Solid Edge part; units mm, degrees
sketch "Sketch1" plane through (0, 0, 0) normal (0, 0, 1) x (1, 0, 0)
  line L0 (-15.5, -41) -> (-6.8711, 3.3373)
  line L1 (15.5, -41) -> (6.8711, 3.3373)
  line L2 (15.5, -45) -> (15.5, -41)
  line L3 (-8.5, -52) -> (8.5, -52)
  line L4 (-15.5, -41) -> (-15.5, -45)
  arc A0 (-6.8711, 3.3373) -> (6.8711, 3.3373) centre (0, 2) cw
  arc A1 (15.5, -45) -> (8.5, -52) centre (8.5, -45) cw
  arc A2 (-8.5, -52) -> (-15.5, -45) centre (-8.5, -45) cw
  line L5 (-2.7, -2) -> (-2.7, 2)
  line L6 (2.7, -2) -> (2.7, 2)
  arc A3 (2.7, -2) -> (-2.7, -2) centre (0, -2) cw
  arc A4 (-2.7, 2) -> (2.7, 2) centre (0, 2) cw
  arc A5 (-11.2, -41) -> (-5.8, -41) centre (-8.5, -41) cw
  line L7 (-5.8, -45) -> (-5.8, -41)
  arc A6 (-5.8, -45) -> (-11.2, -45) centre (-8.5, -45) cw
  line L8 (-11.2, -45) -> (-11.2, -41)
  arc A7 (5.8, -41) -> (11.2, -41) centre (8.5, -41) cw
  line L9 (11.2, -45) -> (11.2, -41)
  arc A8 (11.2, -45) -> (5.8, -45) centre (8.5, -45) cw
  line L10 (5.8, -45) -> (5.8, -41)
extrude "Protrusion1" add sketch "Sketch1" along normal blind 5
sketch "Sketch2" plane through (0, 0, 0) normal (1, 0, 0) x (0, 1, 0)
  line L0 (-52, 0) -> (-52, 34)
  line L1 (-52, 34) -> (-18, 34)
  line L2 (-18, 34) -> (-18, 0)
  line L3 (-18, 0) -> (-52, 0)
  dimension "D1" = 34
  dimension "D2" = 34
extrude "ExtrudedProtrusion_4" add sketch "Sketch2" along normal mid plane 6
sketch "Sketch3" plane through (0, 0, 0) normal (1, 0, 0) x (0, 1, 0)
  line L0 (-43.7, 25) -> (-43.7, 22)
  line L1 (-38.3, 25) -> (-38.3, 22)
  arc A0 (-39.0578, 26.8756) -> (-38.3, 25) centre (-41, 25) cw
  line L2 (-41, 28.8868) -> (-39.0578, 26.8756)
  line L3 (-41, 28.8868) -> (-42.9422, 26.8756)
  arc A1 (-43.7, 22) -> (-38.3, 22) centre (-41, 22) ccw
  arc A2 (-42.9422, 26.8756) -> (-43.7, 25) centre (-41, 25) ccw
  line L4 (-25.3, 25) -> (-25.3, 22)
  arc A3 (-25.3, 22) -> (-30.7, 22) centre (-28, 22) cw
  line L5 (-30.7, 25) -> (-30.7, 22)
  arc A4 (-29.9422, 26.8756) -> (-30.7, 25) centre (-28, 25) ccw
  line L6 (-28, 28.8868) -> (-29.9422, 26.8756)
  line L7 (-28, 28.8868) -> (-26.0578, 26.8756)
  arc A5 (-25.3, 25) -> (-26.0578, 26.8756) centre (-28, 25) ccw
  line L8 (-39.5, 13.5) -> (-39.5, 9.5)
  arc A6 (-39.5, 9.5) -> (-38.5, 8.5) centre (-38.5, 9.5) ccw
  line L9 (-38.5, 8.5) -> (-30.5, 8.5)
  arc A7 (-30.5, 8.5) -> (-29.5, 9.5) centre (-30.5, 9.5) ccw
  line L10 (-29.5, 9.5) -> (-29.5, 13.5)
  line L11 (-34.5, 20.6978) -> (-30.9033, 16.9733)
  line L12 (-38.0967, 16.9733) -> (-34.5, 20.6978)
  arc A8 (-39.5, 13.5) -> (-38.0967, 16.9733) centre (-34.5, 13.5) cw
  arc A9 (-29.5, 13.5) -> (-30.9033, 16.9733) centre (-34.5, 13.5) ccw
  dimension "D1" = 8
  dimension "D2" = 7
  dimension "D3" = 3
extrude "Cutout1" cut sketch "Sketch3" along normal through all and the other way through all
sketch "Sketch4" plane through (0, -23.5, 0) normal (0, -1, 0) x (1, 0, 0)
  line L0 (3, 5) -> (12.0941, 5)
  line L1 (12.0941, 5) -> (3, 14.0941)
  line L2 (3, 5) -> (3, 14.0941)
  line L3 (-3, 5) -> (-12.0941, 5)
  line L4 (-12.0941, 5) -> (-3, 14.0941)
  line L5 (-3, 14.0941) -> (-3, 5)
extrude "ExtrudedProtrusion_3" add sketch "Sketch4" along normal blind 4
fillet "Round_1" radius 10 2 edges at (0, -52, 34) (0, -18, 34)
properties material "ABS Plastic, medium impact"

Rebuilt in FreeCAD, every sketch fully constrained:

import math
import FreeCAD as App
import Part
import Sketcher
from FreeCAD import Vector
Q = App.Units.Quantity


def edges_at(feature, points):
    """Names of the edges that pass closest to the given points."""
    edges = feature.Shape.Edges
    near = lambda p: min(range(len(edges)), key=lambda i: edges[i].distToShape(Part.Vertex(*p))[0])
    return sorted({f"Edge{near(p) + 1}" for p in points})


def add_polygon(sketch, points):
    """Adds a closed chain of lines whose ends are joined by coincident constraints."""
    first, n = sketch.GeometryCount, len(points)
    for a, b in zip(points, points[1:] + points[:1]):
        sketch.addGeometry(Part.LineSegment(App.Vector(*a, 0), App.Vector(*b, 0)), False)
    for i in range(n):
        sketch.addConstraint(Sketcher.Constraint("Coincident", first + i, 2, first + (i + 1) % n, 1))

doc = App.newDocument("Part")
body = doc.addObject("PartDesign::Body", "Body")

# Sketch on XY plane
sketch1 = body.newObject("Sketcher::SketchObject", "Sketch")
sketch1.AttachmentSupport = (doc.getObject("XY_Plane"), [""])
sketch1.MapMode = "FlatFace"
sketch1.addGeometry([
    Part.LineSegment(Vector(-6.9, 3.3, 0), Vector(-15.5, -41, 0)),  # 0
    Part.LineSegment(Vector(-15.5, -41, 0), Vector(-15.5, -45, 0)),  # 1
    Part.ArcOfCircle(Part.Circle(Vector(-8.5, -45, 0), Vector(0, 0, 1), 7), math.radians(180), math.radians(270)),  # 2
    Part.LineSegment(Vector(-8.5, -52, 0), Vector(8.5, -52, 0)),  # 3
    Part.ArcOfCircle(Part.Circle(Vector(8.5, -45, 0), Vector(0, 0, 1), 7), math.radians(-90), math.radians(0)),  # 4
    Part.LineSegment(Vector(15.5, -45, 0), Vector(15.5, -41, 0)),  # 5
    Part.LineSegment(Vector(15.5, -41, 0), Vector(6.9, 3.3, 0)),  # 6
    Part.ArcOfCircle(Part.Circle(Vector(0, 2, 0), Vector(0, 0, 1), 7), math.radians(11), math.radians(169)),  # 7
    Part.LineSegment(Vector(-11.2, -45, 0), Vector(-11.2, -41, 0)),  # 8
    Part.ArcOfCircle(Part.Circle(Vector(-8.5, -41, 0), Vector(0, 0, 1), 2.7), math.radians(0), math.radians(180)),  # 9
    Part.LineSegment(Vector(-5.8, -41, 0), Vector(-5.8, -45, 0)),  # 10
    Part.ArcOfCircle(Part.Circle(Vector(-8.5, -45, 0), Vector(0, 0, 1), 2.7), math.radians(180), math.radians(360)),  # 11
    Part.LineSegment(Vector(5.8, -45, 0), Vector(5.8, -41, 0)),  # 12
    Part.ArcOfCircle(Part.Circle(Vector(8.5, -41, 0), Vector(0, 0, 1), 2.7), math.radians(0), math.radians(180)),  # 13
    Part.LineSegment(Vector(11.2, -41, 0), Vector(11.2, -45, 0)),  # 14
    Part.ArcOfCircle(Part.Circle(Vector(8.5, -45, 0), Vector(0, 0, 1), 2.7), math.radians(180), math.radians(360)),  # 15
    Part.ArcOfCircle(Part.Circle(Vector(0, -2, 0), Vector(0, 0, 1), 2.7), math.radians(180), math.radians(360)),  # 16
    Part.LineSegment(Vector(-2.7, -2, 0), Vector(-2.7, 2, 0)),  # 17
    Part.ArcOfCircle(Part.Circle(Vector(0, 2, 0), Vector(0, 0, 1), 2.7), math.radians(0), math.radians(180)),  # 18
    Part.LineSegment(Vector(2.7, 2, 0), Vector(2.7, -2, 0)),  # 19
], False)
sketch1.addConstraint([
    Sketcher.Constraint("Coincident", 0, 2, 1, 1),
    Sketcher.Constraint("Tangent", 1, 2, 2, 1),
    Sketcher.Constraint("Tangent", 2, 2, 3, 1),
    Sketcher.Constraint("Tangent", 3, 2, 4, 1),
    Sketcher.Constraint("Tangent", 4, 2, 5, 1),
    Sketcher.Constraint("Coincident", 5, 2, 6, 1),
    Sketcher.Constraint("Tangent", 6, 2, 7, 1),
    Sketcher.Constraint("Tangent", 7, 2, 0, 1),
    Sketcher.Constraint("Tangent", 8, 2, 9, 2),
    Sketcher.Constraint("Tangent", 9, 1, 10, 1),
    Sketcher.Constraint("Tangent", 10, 2, 11, 2),
    Sketcher.Constraint("Tangent", 11, 1, 8, 1),
    Sketcher.Constraint("Tangent", 12, 2, 13, 2),
    Sketcher.Constraint("Tangent", 13, 1, 14, 1),
    Sketcher.Constraint("Tangent", 14, 2, 15, 2),
    Sketcher.Constraint("Tangent", 15, 1, 12, 1),
    Sketcher.Constraint("Tangent", 16, 1, 17, 1),
    Sketcher.Constraint("Tangent", 17, 2, 18, 2),
    Sketcher.Constraint("Tangent", 18, 1, 19, 1),
    Sketcher.Constraint("Tangent", 19, 2, 16, 2),
    Sketcher.Constraint("Vertical", 1),
    Sketcher.Constraint("Horizontal", 3),
    Sketcher.Constraint("Vertical", 5),
    Sketcher.Constraint("Vertical", 8),
    Sketcher.Constraint("Vertical", 10),
    Sketcher.Constraint("Vertical", 12),
    Sketcher.Constraint("Vertical", 14),
    Sketcher.Constraint("Vertical", 17),
    Sketcher.Constraint("Vertical", 19),
    Sketcher.Constraint("Coincident", 11, 3, 2, 3),
    Sketcher.Constraint("Coincident", 15, 3, 4, 3),
    Sketcher.Constraint("Coincident", 18, 3, 7, 3),
    Sketcher.Constraint("Equal", 2, 4),
    Sketcher.Constraint("Equal", 4, 7),
    Sketcher.Constraint("Equal", 11, 13),
    Sketcher.Constraint("Equal", 15, 16),
    Sketcher.Constraint("Symmetric", 7, 3, 16, 3, -1, 1),
    Sketcher.Constraint("Symmetric", 9, 3, 13, 3, -2),
    Sketcher.Constraint("Horizontal", 13, 3, 0, 2),
    Sketcher.Constraint("Horizontal", 0, 2, 5, 2),
    Sketcher.Constraint("Equal", 14, 17),
    Sketcher.Constraint("Radius", 2, 7.0),
    Sketcher.Constraint("Radius", 9, 2.7),
    Sketcher.Constraint("DistanceX", 3, 1, 3, 2, 17.0),
    Sketcher.Constraint("DistanceY", 1, 2, 1, 1, 4.0),
    Sketcher.Constraint("DistanceY", 2, 3, -1, 1, 45.0),
])
pad1 = body.newObject("PartDesign::Pad", "Pad")
pad1.Profile = sketch1
pad1.Length = 5

# Sketch on YZ plane
sketch2 = body.newObject("Sketcher::SketchObject", "Sketch001")
sketch2.AttachmentSupport = (doc.getObject("YZ_Plane"), [""])
sketch2.MapMode = "FlatFace"
add_polygon(sketch2, [(-52, 34), (-52, 0), (-18, 0), (-18, 34)])  # lines 0-3
sketch2.addConstraint([
    Sketcher.Constraint("Vertical", 0),
    Sketcher.Constraint("Horizontal", 1),
    Sketcher.Constraint("Vertical", 2),
    Sketcher.Constraint("Horizontal", 3),
    Sketcher.Constraint("PointOnObject", 0, 2, -1),
    Sketcher.Constraint("Equal", 3, 0),
    Sketcher.Constraint("DistanceX", 0, 2, -1, 1, 52.0),
    Sketcher.Constraint("DistanceX", 1, 1, 1, 2, 34.0),
])
pad2 = body.newObject("PartDesign::Pad", "Pad001")
pad2.Profile = sketch2
pad2.Length = 6
pad2.Midplane = True

# Sketch on YZ plane
sketch3 = body.newObject("Sketcher::SketchObject", "Sketch002")
sketch3.AttachmentSupport = (doc.getObject("YZ_Plane"), [""])
sketch3.MapMode = "FlatFace"
sketch3.addGeometry([
    Part.ArcOfCircle(Part.Circle(Vector(-41, 25, 0), Vector(0, 0, 1), 2.7), math.radians(136), math.radians(180)),  # 0
    Part.LineSegment(Vector(-43.7, 25, 0), Vector(-43.7, 22, 0)),  # 1
    Part.ArcOfCircle(Part.Circle(Vector(-41, 22, 0), Vector(0, 0, 1), 2.7), math.radians(180), math.radians(360)),  # 2
    Part.LineSegment(Vector(-38.3, 22, 0), Vector(-38.3, 25, 0)),  # 3
    Part.ArcOfCircle(Part.Circle(Vector(-41, 25, 0), Vector(0, 0, 1), 2.7), math.radians(0), math.radians(44)),  # 4
    Part.LineSegment(Vector(-39.1, 26.9, 0), Vector(-41, 28.9, 0)),  # 5
    Part.LineSegment(Vector(-41, 28.9, 0), Vector(-42.9, 26.9, 0)),  # 6
    Part.LineSegment(Vector(-25.3, 22, 0), Vector(-25.3, 25, 0)),  # 7
    Part.ArcOfCircle(Part.Circle(Vector(-28, 25, 0), Vector(0, 0, 1), 2.7), math.radians(0), math.radians(44)),  # 8
    Part.LineSegment(Vector(-26.1, 26.9, 0), Vector(-28, 28.9, 0)),  # 9
    Part.LineSegment(Vector(-28, 28.9, 0), Vector(-29.9, 26.9, 0)),  # 10
    Part.ArcOfCircle(Part.Circle(Vector(-28, 25, 0), Vector(0, 0, 1), 2.7), math.radians(136), math.radians(180)),  # 11
    Part.LineSegment(Vector(-30.7, 25, 0), Vector(-30.7, 22, 0)),  # 12
    Part.ArcOfCircle(Part.Circle(Vector(-28, 22, 0), Vector(0, 0, 1), 2.7), math.radians(180), math.radians(360)),  # 13
    Part.ArcOfCircle(Part.Circle(Vector(-34.5, 13.5, 0), Vector(0, 0, 1), 5), math.radians(136), math.radians(180)),  # 14
    Part.LineSegment(Vector(-39.5, 13.5, 0), Vector(-39.5, 9.5, 0)),  # 15
    Part.ArcOfCircle(Part.Circle(Vector(-38.5, 9.5, 0), Vector(0, 0, 1), 1), math.radians(180), math.radians(270)),  # 16
    Part.LineSegment(Vector(-38.5, 8.5, 0), Vector(-30.5, 8.5, 0)),  # 17
    Part.ArcOfCircle(Part.Circle(Vector(-30.5, 9.5, 0), Vector(0, 0, 1), 1), math.radians(-90), math.radians(0)),  # 18
    Part.LineSegment(Vector(-29.5, 9.5, 0), Vector(-29.5, 13.5, 0)),  # 19
    Part.ArcOfCircle(Part.Circle(Vector(-34.5, 13.5, 0), Vector(0, 0, 1), 5), math.radians(0), math.radians(44)),  # 20
    Part.LineSegment(Vector(-30.9, 17, 0), Vector(-34.5, 20.7, 0)),  # 21
    Part.LineSegment(Vector(-34.5, 20.7, 0), Vector(-38.1, 17, 0)),  # 22
], False)
sketch3.addConstraint([
    Sketcher.Constraint("Tangent", 0, 2, 1, 1),
    Sketcher.Constraint("Tangent", 1, 2, 2, 1),
    Sketcher.Constraint("Tangent", 2, 2, 3, 1),
    Sketcher.Constraint("Tangent", 3, 2, 4, 1),
    Sketcher.Constraint("Tangent", 4, 2, 5, 1),
    Sketcher.Constraint("Coincident", 5, 2, 6, 1),
    Sketcher.Constraint("Tangent", 6, 2, 0, 1),
    Sketcher.Constraint("Tangent", 7, 2, 8, 1),
    Sketcher.Constraint("Tangent", 8, 2, 9, 1),
    Sketcher.Constraint("Coincident", 9, 2, 10, 1),
    Sketcher.Constraint("Tangent", 10, 2, 11, 1),
    Sketcher.Constraint("Tangent", 11, 2, 12, 1),
    Sketcher.Constraint("Tangent", 12, 2, 13, 1),
    Sketcher.Constraint("Tangent", 13, 2, 7, 1),
    Sketcher.Constraint("Tangent", 14, 2, 15, 1),
    Sketcher.Constraint("Tangent", 15, 2, 16, 1),
    Sketcher.Constraint("Tangent", 16, 2, 17, 1),
    Sketcher.Constraint("Tangent", 17, 2, 18, 1),
    Sketcher.Constraint("Tangent", 18, 2, 19, 1),
    Sketcher.Constraint("Tangent", 19, 2, 20, 1),
    Sketcher.Constraint("Tangent", 20, 2, 21, 1),
    Sketcher.Constraint("Coincident", 21, 2, 22, 1),
    Sketcher.Constraint("Tangent", 22, 2, 14, 1),
    Sketcher.Constraint("Vertical", 1),
    Sketcher.Constraint("Vertical", 3),
    Sketcher.Constraint("Vertical", 7),
    Sketcher.Constraint("Vertical", 12),
    Sketcher.Constraint("Vertical", 15),
    Sketcher.Constraint("Horizontal", 17),
    Sketcher.Constraint("Vertical", 19),
    Sketcher.Constraint("Coincident", 4, 3, 0, 3),
    Sketcher.Constraint("Coincident", 11, 3, 8, 3),
    Sketcher.Constraint("Coincident", 20, 3, 14, 3),
    Sketcher.Constraint("Equal", 0, 2),
    Sketcher.Constraint("Equal", 4, 8),
    Sketcher.Constraint("Equal", 8, 11),
    Sketcher.Constraint("Equal", 16, 18),
    Sketcher.Constraint("Equal", 14, 20),
    Sketcher.Constraint("Parallel", 5, 9),
    Sketcher.Constraint("Parallel", 6, 10),
    Sketcher.Constraint("Parallel", 9, 21),
    Sketcher.Constraint("Parallel", 10, 22),
    Sketcher.Constraint("Horizontal", 4, 3, 8, 3),
    Sketcher.Constraint("Horizontal", 2, 3, 13, 3),
    Sketcher.Constraint("Horizontal", 4, 2, 6, 2),
    Sketcher.Constraint("Radius", 14, 5.0),
    Sketcher.Constraint("Radius", 16, 1.0),
    Sketcher.Constraint("DistanceX", 14, 3, -1, 1, 34.5),
    Sketcher.Constraint("DistanceX", 0, 2, -1, 1, 43.7),
    Sketcher.Constraint("Radius", 0, 2.7),
    Sketcher.Constraint("DistanceY", 1, 2, 1, 1, 3.0),
    Sketcher.Constraint("DistanceY", 15, 2, 15, 1, 4.0),
    Sketcher.Constraint("Angle", 5, Q("134 deg")),
    Sketcher.Constraint("DistanceY", -1, 1, 0, 3, 25.0),
    Sketcher.Constraint("DistanceX", 8, 3, -1, 1, 28.0),
    Sketcher.Constraint("DistanceY", -1, 1, 14, 3, 13.5),
])
pocket1 = body.newObject("PartDesign::Pocket", "Pocket")
pocket1.Profile = sketch3
pocket1.Type = "ThroughAll"
pocket1.Midplane = True

# Sketch on XZ plane
sketch4 = body.newObject("Sketcher::SketchObject", "Sketch003")
sketch4.AttachmentSupport = (doc.getObject("XZ_Plane"), [""])
sketch4.MapMode = "FlatFace"
sketch4.AttachmentOffset = App.Placement(Vector(0, 0, 23.5), App.Rotation())
add_polygon(sketch4, [(3, 14), (3, 5), (12, 5)])  # lines 0-2
add_polygon(sketch4, [(-12, 5), (-3, 5), (-3, 14)])  # lines 3-5
sketch4.addConstraint([
    Sketcher.Constraint("Vertical", 0),
    Sketcher.Constraint("Horizontal", 1),
    Sketcher.Constraint("Horizontal", 3),
    Sketcher.Constraint("Vertical", 4),
    Sketcher.Constraint("Symmetric", 0, 2, 3, 2, -2),
    Sketcher.Constraint("Perpendicular", 2, 5),
    Sketcher.Constraint("Horizontal", 2, 2, 4, 2),
    Sketcher.Constraint("Equal", 1, 3),
    Sketcher.Constraint("DistanceX", -1, 1, 0, 2, 3.0),
    Sketcher.Constraint("DistanceY", -1, 1, 0, 2, 5.0),
    Sketcher.Constraint("DistanceX", 1, 1, 1, 2, 9.094),
])
pad3 = body.newObject("PartDesign::Pad", "Pad002")
pad3.Profile = sketch4
pad3.Length = 4
doc.recompute()

fillet = body.newObject("PartDesign::Fillet", "Fillet")
fillet.Base = (pad3, edges_at(pad3, [(0, -52, 34), (0, -18, 34)]))
fillet.Radius = 10

doc.recompute()
